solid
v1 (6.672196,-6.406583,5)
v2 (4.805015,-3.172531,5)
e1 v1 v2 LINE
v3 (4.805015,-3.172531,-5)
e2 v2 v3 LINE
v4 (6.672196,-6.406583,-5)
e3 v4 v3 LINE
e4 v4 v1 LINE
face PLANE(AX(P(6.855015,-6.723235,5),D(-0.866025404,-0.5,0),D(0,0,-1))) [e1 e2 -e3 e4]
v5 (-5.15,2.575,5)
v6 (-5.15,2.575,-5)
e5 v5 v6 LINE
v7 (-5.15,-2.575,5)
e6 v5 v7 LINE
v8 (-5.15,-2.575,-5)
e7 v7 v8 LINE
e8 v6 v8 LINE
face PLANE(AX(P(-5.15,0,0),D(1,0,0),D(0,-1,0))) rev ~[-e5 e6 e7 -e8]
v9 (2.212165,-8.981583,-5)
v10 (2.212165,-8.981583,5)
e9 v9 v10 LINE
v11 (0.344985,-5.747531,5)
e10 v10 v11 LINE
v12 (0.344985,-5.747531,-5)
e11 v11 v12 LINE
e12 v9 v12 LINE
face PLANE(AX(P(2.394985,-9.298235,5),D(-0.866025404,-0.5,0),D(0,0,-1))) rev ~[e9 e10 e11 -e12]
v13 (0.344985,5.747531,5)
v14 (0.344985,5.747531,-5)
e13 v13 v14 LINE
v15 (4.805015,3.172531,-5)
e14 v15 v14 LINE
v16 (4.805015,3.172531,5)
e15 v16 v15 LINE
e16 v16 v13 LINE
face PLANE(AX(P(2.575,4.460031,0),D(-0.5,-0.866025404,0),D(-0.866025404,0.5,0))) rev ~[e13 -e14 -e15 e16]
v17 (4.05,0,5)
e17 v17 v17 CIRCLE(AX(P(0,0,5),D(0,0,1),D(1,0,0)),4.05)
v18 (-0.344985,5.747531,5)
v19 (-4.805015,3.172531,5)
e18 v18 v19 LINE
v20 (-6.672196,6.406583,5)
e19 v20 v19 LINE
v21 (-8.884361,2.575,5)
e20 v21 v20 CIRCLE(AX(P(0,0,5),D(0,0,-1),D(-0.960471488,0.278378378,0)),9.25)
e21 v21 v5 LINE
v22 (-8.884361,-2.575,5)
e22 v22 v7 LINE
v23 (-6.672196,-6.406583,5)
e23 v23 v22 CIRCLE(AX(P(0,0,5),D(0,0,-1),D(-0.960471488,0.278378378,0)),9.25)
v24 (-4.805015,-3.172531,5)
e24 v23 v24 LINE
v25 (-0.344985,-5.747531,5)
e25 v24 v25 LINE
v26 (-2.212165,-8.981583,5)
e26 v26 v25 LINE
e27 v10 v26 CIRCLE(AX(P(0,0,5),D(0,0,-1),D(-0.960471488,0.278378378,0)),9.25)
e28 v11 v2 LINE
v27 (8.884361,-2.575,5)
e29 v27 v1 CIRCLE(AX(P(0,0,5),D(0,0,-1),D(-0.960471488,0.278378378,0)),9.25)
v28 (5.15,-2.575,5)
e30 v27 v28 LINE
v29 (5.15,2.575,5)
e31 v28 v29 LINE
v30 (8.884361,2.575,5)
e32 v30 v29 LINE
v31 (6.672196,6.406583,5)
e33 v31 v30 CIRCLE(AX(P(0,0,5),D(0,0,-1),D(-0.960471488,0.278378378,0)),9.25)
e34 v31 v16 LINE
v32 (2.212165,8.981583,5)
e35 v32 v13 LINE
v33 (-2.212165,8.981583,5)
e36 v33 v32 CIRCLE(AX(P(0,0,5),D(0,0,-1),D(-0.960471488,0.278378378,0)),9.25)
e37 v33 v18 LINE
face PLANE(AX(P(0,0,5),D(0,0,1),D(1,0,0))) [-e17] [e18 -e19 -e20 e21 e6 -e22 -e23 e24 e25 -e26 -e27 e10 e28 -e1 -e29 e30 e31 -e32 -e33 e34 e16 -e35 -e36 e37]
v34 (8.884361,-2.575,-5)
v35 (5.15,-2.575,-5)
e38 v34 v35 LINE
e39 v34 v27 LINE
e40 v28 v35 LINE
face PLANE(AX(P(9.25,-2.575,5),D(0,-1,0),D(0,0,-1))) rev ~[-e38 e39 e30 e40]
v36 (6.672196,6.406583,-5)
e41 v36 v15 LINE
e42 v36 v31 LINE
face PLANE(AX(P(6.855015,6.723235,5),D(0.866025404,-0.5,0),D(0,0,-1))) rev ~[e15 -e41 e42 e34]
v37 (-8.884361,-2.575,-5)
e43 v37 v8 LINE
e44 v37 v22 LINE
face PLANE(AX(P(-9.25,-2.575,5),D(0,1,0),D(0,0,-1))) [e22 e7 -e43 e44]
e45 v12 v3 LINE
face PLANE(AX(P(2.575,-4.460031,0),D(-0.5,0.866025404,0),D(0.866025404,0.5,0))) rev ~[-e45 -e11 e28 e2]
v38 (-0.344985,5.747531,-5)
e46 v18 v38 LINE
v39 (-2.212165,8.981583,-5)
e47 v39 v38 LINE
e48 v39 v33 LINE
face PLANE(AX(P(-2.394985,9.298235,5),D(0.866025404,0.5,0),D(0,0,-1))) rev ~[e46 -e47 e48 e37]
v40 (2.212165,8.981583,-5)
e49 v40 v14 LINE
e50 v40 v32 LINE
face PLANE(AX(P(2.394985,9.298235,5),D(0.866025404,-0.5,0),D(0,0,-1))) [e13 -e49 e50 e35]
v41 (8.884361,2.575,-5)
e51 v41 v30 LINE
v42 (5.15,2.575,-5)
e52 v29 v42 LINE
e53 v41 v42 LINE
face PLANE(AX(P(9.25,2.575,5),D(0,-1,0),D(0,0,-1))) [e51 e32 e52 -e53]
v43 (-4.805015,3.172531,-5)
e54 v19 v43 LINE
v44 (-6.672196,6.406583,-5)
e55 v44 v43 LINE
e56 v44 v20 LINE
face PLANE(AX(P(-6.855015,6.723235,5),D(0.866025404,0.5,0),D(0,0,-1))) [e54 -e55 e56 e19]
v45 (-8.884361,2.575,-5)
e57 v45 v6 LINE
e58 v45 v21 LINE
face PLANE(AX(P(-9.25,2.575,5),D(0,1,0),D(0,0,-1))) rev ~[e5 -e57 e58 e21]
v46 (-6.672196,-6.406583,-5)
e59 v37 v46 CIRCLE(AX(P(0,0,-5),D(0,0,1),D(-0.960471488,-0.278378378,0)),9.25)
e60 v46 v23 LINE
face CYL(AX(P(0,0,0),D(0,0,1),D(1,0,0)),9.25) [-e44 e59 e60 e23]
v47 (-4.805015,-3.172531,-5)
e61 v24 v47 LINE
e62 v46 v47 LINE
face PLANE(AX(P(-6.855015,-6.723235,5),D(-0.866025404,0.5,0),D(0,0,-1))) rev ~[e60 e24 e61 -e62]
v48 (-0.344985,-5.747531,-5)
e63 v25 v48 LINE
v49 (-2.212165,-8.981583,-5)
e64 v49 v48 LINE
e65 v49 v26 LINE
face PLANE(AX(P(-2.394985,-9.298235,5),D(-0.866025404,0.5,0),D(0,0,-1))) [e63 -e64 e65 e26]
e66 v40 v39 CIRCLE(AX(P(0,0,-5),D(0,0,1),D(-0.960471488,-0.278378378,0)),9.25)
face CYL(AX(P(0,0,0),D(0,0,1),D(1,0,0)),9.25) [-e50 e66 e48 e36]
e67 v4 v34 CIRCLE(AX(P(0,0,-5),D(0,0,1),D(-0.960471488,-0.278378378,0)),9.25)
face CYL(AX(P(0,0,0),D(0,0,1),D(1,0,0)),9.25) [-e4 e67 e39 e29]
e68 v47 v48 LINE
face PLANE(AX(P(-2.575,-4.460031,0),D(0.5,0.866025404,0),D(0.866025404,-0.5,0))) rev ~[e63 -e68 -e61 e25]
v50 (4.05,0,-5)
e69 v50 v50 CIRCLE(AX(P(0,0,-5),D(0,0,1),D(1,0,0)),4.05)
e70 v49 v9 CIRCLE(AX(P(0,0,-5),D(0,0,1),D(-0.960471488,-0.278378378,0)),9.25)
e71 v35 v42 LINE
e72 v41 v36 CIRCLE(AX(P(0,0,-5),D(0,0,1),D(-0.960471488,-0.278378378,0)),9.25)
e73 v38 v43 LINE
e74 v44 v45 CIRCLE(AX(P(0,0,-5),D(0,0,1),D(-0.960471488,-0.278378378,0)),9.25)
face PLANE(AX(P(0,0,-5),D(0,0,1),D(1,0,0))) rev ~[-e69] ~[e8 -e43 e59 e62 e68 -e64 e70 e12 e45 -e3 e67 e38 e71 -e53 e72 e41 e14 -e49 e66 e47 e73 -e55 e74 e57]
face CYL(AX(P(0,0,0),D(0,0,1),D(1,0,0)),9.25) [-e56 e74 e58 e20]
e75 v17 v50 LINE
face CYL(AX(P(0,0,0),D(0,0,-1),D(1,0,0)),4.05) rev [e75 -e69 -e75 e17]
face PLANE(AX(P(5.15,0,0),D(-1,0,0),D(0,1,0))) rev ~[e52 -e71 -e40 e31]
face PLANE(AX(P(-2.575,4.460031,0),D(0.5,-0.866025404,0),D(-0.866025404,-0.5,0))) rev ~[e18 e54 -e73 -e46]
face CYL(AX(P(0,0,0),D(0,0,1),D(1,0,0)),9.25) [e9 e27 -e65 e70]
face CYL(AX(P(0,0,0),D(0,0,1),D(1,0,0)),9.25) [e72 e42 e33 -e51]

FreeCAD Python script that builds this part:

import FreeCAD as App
import Part
import Sketcher


def add_polygon(sketch, points):
    """Adds a closed chain of lines whose ends are joined by coincident constraints."""
    first, n = sketch.GeometryCount, len(points)
    for a, b in zip(points, points[1:] + points[:1]):
        sketch.addGeometry(Part.LineSegment(App.Vector(*a, 0), App.Vector(*b, 0)), False)
    for i in range(n):
        sketch.addConstraint(Sketcher.Constraint("Coincident", first + i, 2, first + (i + 1) % n, 1))

doc = App.newDocument("Part")
params = doc.addObject("Spreadsheet::Sheet", "Params")
for row, (alias, value) in enumerate([
    ("sketch1_diameter", "18.5 mm"),
    ("sketch1_diameter2", "8.1 mm"),
    ("pad1_length", "10 mm"),
    ("sketch2_height", "10 mm"),
    ("sketch2_width", "5.15 mm"),
    ("pocket1_length", "4.1 mm"),
], start=1):
    params.set(f"A{row}", alias)
    params.set(f"B{row}", "=" + value)
    params.setAlias(f"B{row}", alias)

body = doc.addObject("PartDesign::Body", "Body")

# Sketch on XY plane
sketch1 = body.newObject("Sketcher::SketchObject", "Sketch")
sketch1.AttachmentSupport = (doc.getObject("XY_Plane"), [""])
sketch1.MapMode = "FlatFace"
sketch1.addGeometry(Part.Circle(App.Vector(0, 0, 0), App.Vector(0, 0, 1), 9.25), False)
sketch1.addGeometry(Part.Circle(App.Vector(0, 0, 0), App.Vector(0, 0, 1), 4.05), False)
sketch1.addConstraint(Sketcher.Constraint("Coincident", 0, 3, -1, 1))
sketch1.addConstraint(Sketcher.Constraint("Coincident", 1, 3, -1, 1))
sketch1.addConstraint(Sketcher.Constraint("Diameter", 0, 18.5))
sketch1.addConstraint(Sketcher.Constraint("Diameter", 1, 8.1))
sketch1.setExpression("Constraints[2]", "Params.sketch1_diameter")
sketch1.setExpression("Constraints[3]", "Params.sketch1_diameter2")
pad1 = body.newObject("PartDesign::Pad", "Pad")
pad1.Profile = sketch1
pad1.setExpression("Length", "Params.pad1_length")
pad1.Midplane = True

# Sketch on YZ plane
sketch2 = body.newObject("Sketcher::SketchObject", "Sketch001")
sketch2.AttachmentSupport = (doc.getObject("YZ_Plane"), [""])
sketch2.MapMode = "FlatFace"
sketch2.AttachmentOffset = App.Placement(App.Vector(0, 0, -9.25), App.Rotation())
add_polygon(sketch2, [(2.575, -5), (2.575, 5), (-2.575, 5), (-2.575, -5)])  # lines 0-3
sketch2.addConstraint(Sketcher.Constraint("Vertical", 0))
sketch2.addConstraint(Sketcher.Constraint("Horizontal", 1))
sketch2.addConstraint(Sketcher.Constraint("Vertical", 2))
sketch2.addConstraint(Sketcher.Constraint("Horizontal", 3))
sketch2.addConstraint(Sketcher.Constraint("Symmetric", 0, 2, 2, 2, -1, 1))
sketch2.addConstraint(Sketcher.Constraint("DistanceY", 0, 1, 0, 2, 10.0))
sketch2.addConstraint(Sketcher.Constraint("DistanceX", 1, 2, 1, 1, 5.15))
sketch2.setExpression("Constraints[9]", "Params.sketch2_height")
sketch2.setExpression("Constraints[10]", "Params.sketch2_width")
pocket1 = body.newObject("PartDesign::Pocket", "Pocket")
pocket1.Profile = sketch2
pocket1.setExpression("Length", "Params.pocket1_length")
pocket1.Reversed = True
doc.recompute()

polarpattern = body.newObject("PartDesign::PolarPattern", "PolarPattern")
polarpattern.Originals = [pocket1]
polarpattern.Axis = (doc.getObject("Z_Axis"), [""])
polarpattern.Angle = 360
polarpattern.Occurrences = 6
body.Tip = polarpattern

doc.recompute()
